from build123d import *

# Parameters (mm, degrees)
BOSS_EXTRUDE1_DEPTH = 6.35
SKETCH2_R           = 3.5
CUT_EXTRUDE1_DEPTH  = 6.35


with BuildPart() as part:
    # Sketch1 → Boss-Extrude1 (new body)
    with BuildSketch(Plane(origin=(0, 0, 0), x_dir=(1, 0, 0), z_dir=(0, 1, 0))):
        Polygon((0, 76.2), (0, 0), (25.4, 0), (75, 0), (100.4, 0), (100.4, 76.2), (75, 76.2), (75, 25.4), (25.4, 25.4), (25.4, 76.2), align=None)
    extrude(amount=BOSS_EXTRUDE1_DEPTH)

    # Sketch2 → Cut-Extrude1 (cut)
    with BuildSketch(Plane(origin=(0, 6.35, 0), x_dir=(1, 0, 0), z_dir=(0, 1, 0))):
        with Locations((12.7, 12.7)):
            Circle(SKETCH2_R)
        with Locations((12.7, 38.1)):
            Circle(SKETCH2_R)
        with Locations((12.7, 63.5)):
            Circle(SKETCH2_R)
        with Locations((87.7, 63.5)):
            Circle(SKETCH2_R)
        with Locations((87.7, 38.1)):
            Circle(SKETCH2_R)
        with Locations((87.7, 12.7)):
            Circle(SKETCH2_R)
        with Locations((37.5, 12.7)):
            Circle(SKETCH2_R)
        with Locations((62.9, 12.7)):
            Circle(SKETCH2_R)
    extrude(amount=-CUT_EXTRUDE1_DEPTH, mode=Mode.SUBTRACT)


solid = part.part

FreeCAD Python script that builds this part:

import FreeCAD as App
import Part
import Sketcher
Q = App.Units.Quantity

doc = App.newDocument("Part")
body = doc.addObject("PartDesign::Body", "Body")

# Sketch on XZ plane
sketch1 = body.newObject("Sketcher::SketchObject", "Sketch")
sketch1.AttachmentSupport = (doc.getObject("XZ_Plane"), [""])
sketch1.MapMode = "FlatFace"
sketch1.addGeometry([
    Part.LineSegment(App.Vector(0, -76, 0), App.Vector(0, 0, 0)),  # 0
    Part.LineSegment(App.Vector(0, 0, 0), App.Vector(100, 0, 0)),  # 1
    Part.LineSegment(App.Vector(100, 0, 0), App.Vector(100, -76, 0)),  # 2
    Part.LineSegment(App.Vector(100, -76, 0), App.Vector(75, -76, 0)),  # 3
    Part.LineSegment(App.Vector(75, -76, 0), App.Vector(75, -25, 0)),  # 4
    Part.LineSegment(App.Vector(75, -25, 0), App.Vector(25, -25, 0)),  # 5
    Part.LineSegment(App.Vector(25, -25, 0), App.Vector(25, -76, 0)),  # 6
    Part.LineSegment(App.Vector(25, -76, 0), App.Vector(0, -76, 0)),  # 7
], False)
sketch1.addConstraint([
    Sketcher.Constraint("Coincident", 0, 2, 1, 1),
    Sketcher.Constraint("Coincident", 1, 2, 2, 1),
    Sketcher.Constraint("Coincident", 2, 2, 3, 1),
    Sketcher.Constraint("Coincident", 3, 2, 4, 1),
    Sketcher.Constraint("Coincident", 4, 2, 5, 1),
    Sketcher.Constraint("Coincident", 5, 2, 6, 1),
    Sketcher.Constraint("Coincident", 6, 2, 7, 1),
    Sketcher.Constraint("Coincident", 7, 2, 0, 1),
    Sketcher.Constraint("Vertical", 0),
    Sketcher.Constraint("Horizontal", 1),
    Sketcher.Constraint("Vertical", 2),
    Sketcher.Constraint("Horizontal", 3),
    Sketcher.Constraint("Vertical", 4),
    Sketcher.Constraint("Horizontal", 5),
    Sketcher.Constraint("Vertical", 6),
    Sketcher.Constraint("Horizontal", 7),
    Sketcher.Constraint("Coincident", 0, 2, -1, 1),
    Sketcher.Constraint("Horizontal", 3, 2, 6, 2),
    Sketcher.Constraint("Equal", 3, 7),
    Sketcher.Constraint("DistanceX", 3, 2, 3, 1, Q("1 in")),
    Sketcher.Constraint("DistanceY", 0, 1, 0, 2, Q("3 in")),
    Sketcher.Constraint("DistanceY", 4, 1, 4, 2, Q("2 in")),
    Sketcher.Constraint("DistanceX", 1, 1, 1, 2, 100.4),
])
pad1 = body.newObject("PartDesign::Pad", "Pad")
pad1.Profile = sketch1
pad1.Length = Q("0.25 in")
pad1.Reversed = True

# Sketch on XZ plane
sketch2 = body.newObject("Sketcher::SketchObject", "Sketch001")
sketch2.AttachmentSupport = (doc.getObject("XZ_Plane"), [""])
sketch2.MapMode = "FlatFace"
sketch2.AttachmentOffset = App.Placement(App.Vector(0, 0, -0.25 * 25.4), App.Rotation())
sketch2.addGeometry([
    Part.Circle(App.Vector(12.7, -12.7, 0), App.Vector(0, 0, 1), 3.5),  # 0
    Part.Circle(App.Vector(12.7, -38.1, 0), App.Vector(0, 0, 1), 3.5),  # 1
    Part.Circle(App.Vector(12.7, -63.5, 0), App.Vector(0, 0, 1), 3.5),  # 2
    Part.Circle(App.Vector(87.7, -63.5, 0), App.Vector(0, 0, 1), 3.5),  # 3
    Part.Circle(App.Vector(87.7, -38.1, 0), App.Vector(0, 0, 1), 3.5),  # 4
    Part.Circle(App.Vector(87.7, -12.7, 0), App.Vector(0, 0, 1), 3.5),  # 5
    Part.Circle(App.Vector(37.5, -12.7, 0), App.Vector(0, 0, 1), 3.5),  # 6
    Part.Circle(App.Vector(62.9, -12.7, 0), App.Vector(0, 0, 1), 3.5),  # 7
], False)
sketch2.addConstraint([
    Sketcher.Constraint("Equal", 0, 1),
    Sketcher.Constraint("Equal", 1, 2),
    Sketcher.Constraint("Equal", 2, 3),
    Sketcher.Constraint("Equal", 3, 4),
    Sketcher.Constraint("Equal", 4, 5),
    Sketcher.Constraint("Equal", 5, 6),
    Sketcher.Constraint("Equal", 6, 7),
    Sketcher.Constraint("Horizontal", 2, 3, 3, 3),
    Sketcher.Constraint("Horizontal", 1, 3, 4, 3),
    Sketcher.Constraint("Horizontal", 0, 3, 5, 3),
    Sketcher.Constraint("Horizontal", 5, 3, 6, 3),
    Sketcher.Constraint("Horizontal", 6, 3, 7, 3),
    Sketcher.Constraint("Vertical", 0, 3, 1, 3),
    Sketcher.Constraint("Vertical", 1, 3, 2, 3),
    Sketcher.Constraint("Vertical", 3, 3, 4, 3),
    Sketcher.Constraint("Vertical", 4, 3, 5, 3),
    Sketcher.Constraint("DistanceY", 1, 3, 0, 3, Q("1 in")),
    Sketcher.Constraint("DistanceY", 2, 3, 1, 3, Q("1 in")),
    Sketcher.Constraint("DistanceX", 6, 3, 7, 3, Q("1 in")),
    Sketcher.Constraint("DistanceX", -1, 1, 0, 3, Q("0.5 in")),
    Sketcher.Constraint("DistanceY", 0, 3, -1, 1, Q("0.5 in")),
    Sketcher.Constraint("Diameter", 0, 7.0),
    Sketcher.Constraint("DistanceX", -1, 1, 3, 3, 87.7),
    Sketcher.Constraint("DistanceX", -1, 1, 6, 3, 37.5),
])
pocket1 = body.newObject("PartDesign::Pocket", "Pocket")
pocket1.Profile = sketch2
pocket1.Length = Q("0.25 in")
pocket1.Reversed = True

doc.recompute()
